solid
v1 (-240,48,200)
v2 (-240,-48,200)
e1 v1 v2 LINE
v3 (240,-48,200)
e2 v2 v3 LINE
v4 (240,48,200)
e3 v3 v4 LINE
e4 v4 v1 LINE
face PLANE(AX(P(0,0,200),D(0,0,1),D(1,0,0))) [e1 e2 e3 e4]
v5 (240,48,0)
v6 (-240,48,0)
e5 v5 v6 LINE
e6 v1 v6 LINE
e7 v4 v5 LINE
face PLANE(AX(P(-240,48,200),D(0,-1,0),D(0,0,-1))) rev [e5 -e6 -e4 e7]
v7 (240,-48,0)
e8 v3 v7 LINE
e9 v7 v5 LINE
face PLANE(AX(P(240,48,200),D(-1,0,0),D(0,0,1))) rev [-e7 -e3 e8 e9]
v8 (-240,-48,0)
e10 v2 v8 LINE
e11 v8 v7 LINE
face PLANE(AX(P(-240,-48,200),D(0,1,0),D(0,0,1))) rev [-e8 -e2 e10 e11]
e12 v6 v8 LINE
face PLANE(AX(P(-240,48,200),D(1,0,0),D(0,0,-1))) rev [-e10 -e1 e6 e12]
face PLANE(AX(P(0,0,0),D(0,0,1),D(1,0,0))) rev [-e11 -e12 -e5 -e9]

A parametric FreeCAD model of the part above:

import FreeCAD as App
import Part
import Sketcher

V = App.Vector

doc = App.newDocument("Part")
params = doc.addObject("Spreadsheet::Sheet", "Params")
for row, (alias, value) in enumerate([
    ("sketch1_width", "480 mm"),
    ("sketch1_height", "96 mm"),
    ("pad1_length", "200 mm"),
], start=1):
    params.set(f"A{row}", alias)
    params.set(f"B{row}", "=" + value)
    params.setAlias(f"B{row}", alias)

body = doc.addObject("PartDesign::Body", "Body")

# Sketch on XY plane
sketch1 = doc.addObject("Sketcher::SketchObject", "Sketch")
body.addObject(sketch1)
sketch1.AttachmentSupport = (doc.XY_Plane, [""])
sketch1.MapMode = "FlatFace"
sketch1.addGeometry([
    Part.LineSegment(V(-240, 48, 0), V(-240, -48, 0)),
    Part.LineSegment(V(-240, -48, 0), V(240, -48, 0)),
    Part.LineSegment(V(240, -48, 0), V(240, 48, 0)),
    Part.LineSegment(V(240, 48, 0), V(-240, 48, 0)),
], False)
sketch1.addConstraint([
    Sketcher.Constraint("Coincident", 0, 2, 1, 1),
    Sketcher.Constraint("Coincident", 1, 2, 2, 1),
    Sketcher.Constraint("Coincident", 2, 2, 3, 1),
    Sketcher.Constraint("Coincident", 3, 2, 0, 1),
    Sketcher.Constraint("Vertical", 0),
    Sketcher.Constraint("Horizontal", 1),
    Sketcher.Constraint("Vertical", 2),
    Sketcher.Constraint("Horizontal", 3),
    Sketcher.Constraint("Symmetric", 0, 2, 2, 2, -1, 1),
    Sketcher.Constraint("DistanceX", 1, 1, 1, 2, 480.0),
    Sketcher.Constraint("DistanceY", 0, 2, 0, 1, 96.0),
])
sketch1.setExpression("Constraints[9]", "Params.sketch1_width")
sketch1.setExpression("Constraints[10]", "Params.sketch1_height")
pad1 = doc.addObject("PartDesign::Pad", "Pad")
body.addObject(pad1)
pad1.Profile = sketch1
pad1.setExpression("Length", "Params.pad1_length")

doc.recompute()
